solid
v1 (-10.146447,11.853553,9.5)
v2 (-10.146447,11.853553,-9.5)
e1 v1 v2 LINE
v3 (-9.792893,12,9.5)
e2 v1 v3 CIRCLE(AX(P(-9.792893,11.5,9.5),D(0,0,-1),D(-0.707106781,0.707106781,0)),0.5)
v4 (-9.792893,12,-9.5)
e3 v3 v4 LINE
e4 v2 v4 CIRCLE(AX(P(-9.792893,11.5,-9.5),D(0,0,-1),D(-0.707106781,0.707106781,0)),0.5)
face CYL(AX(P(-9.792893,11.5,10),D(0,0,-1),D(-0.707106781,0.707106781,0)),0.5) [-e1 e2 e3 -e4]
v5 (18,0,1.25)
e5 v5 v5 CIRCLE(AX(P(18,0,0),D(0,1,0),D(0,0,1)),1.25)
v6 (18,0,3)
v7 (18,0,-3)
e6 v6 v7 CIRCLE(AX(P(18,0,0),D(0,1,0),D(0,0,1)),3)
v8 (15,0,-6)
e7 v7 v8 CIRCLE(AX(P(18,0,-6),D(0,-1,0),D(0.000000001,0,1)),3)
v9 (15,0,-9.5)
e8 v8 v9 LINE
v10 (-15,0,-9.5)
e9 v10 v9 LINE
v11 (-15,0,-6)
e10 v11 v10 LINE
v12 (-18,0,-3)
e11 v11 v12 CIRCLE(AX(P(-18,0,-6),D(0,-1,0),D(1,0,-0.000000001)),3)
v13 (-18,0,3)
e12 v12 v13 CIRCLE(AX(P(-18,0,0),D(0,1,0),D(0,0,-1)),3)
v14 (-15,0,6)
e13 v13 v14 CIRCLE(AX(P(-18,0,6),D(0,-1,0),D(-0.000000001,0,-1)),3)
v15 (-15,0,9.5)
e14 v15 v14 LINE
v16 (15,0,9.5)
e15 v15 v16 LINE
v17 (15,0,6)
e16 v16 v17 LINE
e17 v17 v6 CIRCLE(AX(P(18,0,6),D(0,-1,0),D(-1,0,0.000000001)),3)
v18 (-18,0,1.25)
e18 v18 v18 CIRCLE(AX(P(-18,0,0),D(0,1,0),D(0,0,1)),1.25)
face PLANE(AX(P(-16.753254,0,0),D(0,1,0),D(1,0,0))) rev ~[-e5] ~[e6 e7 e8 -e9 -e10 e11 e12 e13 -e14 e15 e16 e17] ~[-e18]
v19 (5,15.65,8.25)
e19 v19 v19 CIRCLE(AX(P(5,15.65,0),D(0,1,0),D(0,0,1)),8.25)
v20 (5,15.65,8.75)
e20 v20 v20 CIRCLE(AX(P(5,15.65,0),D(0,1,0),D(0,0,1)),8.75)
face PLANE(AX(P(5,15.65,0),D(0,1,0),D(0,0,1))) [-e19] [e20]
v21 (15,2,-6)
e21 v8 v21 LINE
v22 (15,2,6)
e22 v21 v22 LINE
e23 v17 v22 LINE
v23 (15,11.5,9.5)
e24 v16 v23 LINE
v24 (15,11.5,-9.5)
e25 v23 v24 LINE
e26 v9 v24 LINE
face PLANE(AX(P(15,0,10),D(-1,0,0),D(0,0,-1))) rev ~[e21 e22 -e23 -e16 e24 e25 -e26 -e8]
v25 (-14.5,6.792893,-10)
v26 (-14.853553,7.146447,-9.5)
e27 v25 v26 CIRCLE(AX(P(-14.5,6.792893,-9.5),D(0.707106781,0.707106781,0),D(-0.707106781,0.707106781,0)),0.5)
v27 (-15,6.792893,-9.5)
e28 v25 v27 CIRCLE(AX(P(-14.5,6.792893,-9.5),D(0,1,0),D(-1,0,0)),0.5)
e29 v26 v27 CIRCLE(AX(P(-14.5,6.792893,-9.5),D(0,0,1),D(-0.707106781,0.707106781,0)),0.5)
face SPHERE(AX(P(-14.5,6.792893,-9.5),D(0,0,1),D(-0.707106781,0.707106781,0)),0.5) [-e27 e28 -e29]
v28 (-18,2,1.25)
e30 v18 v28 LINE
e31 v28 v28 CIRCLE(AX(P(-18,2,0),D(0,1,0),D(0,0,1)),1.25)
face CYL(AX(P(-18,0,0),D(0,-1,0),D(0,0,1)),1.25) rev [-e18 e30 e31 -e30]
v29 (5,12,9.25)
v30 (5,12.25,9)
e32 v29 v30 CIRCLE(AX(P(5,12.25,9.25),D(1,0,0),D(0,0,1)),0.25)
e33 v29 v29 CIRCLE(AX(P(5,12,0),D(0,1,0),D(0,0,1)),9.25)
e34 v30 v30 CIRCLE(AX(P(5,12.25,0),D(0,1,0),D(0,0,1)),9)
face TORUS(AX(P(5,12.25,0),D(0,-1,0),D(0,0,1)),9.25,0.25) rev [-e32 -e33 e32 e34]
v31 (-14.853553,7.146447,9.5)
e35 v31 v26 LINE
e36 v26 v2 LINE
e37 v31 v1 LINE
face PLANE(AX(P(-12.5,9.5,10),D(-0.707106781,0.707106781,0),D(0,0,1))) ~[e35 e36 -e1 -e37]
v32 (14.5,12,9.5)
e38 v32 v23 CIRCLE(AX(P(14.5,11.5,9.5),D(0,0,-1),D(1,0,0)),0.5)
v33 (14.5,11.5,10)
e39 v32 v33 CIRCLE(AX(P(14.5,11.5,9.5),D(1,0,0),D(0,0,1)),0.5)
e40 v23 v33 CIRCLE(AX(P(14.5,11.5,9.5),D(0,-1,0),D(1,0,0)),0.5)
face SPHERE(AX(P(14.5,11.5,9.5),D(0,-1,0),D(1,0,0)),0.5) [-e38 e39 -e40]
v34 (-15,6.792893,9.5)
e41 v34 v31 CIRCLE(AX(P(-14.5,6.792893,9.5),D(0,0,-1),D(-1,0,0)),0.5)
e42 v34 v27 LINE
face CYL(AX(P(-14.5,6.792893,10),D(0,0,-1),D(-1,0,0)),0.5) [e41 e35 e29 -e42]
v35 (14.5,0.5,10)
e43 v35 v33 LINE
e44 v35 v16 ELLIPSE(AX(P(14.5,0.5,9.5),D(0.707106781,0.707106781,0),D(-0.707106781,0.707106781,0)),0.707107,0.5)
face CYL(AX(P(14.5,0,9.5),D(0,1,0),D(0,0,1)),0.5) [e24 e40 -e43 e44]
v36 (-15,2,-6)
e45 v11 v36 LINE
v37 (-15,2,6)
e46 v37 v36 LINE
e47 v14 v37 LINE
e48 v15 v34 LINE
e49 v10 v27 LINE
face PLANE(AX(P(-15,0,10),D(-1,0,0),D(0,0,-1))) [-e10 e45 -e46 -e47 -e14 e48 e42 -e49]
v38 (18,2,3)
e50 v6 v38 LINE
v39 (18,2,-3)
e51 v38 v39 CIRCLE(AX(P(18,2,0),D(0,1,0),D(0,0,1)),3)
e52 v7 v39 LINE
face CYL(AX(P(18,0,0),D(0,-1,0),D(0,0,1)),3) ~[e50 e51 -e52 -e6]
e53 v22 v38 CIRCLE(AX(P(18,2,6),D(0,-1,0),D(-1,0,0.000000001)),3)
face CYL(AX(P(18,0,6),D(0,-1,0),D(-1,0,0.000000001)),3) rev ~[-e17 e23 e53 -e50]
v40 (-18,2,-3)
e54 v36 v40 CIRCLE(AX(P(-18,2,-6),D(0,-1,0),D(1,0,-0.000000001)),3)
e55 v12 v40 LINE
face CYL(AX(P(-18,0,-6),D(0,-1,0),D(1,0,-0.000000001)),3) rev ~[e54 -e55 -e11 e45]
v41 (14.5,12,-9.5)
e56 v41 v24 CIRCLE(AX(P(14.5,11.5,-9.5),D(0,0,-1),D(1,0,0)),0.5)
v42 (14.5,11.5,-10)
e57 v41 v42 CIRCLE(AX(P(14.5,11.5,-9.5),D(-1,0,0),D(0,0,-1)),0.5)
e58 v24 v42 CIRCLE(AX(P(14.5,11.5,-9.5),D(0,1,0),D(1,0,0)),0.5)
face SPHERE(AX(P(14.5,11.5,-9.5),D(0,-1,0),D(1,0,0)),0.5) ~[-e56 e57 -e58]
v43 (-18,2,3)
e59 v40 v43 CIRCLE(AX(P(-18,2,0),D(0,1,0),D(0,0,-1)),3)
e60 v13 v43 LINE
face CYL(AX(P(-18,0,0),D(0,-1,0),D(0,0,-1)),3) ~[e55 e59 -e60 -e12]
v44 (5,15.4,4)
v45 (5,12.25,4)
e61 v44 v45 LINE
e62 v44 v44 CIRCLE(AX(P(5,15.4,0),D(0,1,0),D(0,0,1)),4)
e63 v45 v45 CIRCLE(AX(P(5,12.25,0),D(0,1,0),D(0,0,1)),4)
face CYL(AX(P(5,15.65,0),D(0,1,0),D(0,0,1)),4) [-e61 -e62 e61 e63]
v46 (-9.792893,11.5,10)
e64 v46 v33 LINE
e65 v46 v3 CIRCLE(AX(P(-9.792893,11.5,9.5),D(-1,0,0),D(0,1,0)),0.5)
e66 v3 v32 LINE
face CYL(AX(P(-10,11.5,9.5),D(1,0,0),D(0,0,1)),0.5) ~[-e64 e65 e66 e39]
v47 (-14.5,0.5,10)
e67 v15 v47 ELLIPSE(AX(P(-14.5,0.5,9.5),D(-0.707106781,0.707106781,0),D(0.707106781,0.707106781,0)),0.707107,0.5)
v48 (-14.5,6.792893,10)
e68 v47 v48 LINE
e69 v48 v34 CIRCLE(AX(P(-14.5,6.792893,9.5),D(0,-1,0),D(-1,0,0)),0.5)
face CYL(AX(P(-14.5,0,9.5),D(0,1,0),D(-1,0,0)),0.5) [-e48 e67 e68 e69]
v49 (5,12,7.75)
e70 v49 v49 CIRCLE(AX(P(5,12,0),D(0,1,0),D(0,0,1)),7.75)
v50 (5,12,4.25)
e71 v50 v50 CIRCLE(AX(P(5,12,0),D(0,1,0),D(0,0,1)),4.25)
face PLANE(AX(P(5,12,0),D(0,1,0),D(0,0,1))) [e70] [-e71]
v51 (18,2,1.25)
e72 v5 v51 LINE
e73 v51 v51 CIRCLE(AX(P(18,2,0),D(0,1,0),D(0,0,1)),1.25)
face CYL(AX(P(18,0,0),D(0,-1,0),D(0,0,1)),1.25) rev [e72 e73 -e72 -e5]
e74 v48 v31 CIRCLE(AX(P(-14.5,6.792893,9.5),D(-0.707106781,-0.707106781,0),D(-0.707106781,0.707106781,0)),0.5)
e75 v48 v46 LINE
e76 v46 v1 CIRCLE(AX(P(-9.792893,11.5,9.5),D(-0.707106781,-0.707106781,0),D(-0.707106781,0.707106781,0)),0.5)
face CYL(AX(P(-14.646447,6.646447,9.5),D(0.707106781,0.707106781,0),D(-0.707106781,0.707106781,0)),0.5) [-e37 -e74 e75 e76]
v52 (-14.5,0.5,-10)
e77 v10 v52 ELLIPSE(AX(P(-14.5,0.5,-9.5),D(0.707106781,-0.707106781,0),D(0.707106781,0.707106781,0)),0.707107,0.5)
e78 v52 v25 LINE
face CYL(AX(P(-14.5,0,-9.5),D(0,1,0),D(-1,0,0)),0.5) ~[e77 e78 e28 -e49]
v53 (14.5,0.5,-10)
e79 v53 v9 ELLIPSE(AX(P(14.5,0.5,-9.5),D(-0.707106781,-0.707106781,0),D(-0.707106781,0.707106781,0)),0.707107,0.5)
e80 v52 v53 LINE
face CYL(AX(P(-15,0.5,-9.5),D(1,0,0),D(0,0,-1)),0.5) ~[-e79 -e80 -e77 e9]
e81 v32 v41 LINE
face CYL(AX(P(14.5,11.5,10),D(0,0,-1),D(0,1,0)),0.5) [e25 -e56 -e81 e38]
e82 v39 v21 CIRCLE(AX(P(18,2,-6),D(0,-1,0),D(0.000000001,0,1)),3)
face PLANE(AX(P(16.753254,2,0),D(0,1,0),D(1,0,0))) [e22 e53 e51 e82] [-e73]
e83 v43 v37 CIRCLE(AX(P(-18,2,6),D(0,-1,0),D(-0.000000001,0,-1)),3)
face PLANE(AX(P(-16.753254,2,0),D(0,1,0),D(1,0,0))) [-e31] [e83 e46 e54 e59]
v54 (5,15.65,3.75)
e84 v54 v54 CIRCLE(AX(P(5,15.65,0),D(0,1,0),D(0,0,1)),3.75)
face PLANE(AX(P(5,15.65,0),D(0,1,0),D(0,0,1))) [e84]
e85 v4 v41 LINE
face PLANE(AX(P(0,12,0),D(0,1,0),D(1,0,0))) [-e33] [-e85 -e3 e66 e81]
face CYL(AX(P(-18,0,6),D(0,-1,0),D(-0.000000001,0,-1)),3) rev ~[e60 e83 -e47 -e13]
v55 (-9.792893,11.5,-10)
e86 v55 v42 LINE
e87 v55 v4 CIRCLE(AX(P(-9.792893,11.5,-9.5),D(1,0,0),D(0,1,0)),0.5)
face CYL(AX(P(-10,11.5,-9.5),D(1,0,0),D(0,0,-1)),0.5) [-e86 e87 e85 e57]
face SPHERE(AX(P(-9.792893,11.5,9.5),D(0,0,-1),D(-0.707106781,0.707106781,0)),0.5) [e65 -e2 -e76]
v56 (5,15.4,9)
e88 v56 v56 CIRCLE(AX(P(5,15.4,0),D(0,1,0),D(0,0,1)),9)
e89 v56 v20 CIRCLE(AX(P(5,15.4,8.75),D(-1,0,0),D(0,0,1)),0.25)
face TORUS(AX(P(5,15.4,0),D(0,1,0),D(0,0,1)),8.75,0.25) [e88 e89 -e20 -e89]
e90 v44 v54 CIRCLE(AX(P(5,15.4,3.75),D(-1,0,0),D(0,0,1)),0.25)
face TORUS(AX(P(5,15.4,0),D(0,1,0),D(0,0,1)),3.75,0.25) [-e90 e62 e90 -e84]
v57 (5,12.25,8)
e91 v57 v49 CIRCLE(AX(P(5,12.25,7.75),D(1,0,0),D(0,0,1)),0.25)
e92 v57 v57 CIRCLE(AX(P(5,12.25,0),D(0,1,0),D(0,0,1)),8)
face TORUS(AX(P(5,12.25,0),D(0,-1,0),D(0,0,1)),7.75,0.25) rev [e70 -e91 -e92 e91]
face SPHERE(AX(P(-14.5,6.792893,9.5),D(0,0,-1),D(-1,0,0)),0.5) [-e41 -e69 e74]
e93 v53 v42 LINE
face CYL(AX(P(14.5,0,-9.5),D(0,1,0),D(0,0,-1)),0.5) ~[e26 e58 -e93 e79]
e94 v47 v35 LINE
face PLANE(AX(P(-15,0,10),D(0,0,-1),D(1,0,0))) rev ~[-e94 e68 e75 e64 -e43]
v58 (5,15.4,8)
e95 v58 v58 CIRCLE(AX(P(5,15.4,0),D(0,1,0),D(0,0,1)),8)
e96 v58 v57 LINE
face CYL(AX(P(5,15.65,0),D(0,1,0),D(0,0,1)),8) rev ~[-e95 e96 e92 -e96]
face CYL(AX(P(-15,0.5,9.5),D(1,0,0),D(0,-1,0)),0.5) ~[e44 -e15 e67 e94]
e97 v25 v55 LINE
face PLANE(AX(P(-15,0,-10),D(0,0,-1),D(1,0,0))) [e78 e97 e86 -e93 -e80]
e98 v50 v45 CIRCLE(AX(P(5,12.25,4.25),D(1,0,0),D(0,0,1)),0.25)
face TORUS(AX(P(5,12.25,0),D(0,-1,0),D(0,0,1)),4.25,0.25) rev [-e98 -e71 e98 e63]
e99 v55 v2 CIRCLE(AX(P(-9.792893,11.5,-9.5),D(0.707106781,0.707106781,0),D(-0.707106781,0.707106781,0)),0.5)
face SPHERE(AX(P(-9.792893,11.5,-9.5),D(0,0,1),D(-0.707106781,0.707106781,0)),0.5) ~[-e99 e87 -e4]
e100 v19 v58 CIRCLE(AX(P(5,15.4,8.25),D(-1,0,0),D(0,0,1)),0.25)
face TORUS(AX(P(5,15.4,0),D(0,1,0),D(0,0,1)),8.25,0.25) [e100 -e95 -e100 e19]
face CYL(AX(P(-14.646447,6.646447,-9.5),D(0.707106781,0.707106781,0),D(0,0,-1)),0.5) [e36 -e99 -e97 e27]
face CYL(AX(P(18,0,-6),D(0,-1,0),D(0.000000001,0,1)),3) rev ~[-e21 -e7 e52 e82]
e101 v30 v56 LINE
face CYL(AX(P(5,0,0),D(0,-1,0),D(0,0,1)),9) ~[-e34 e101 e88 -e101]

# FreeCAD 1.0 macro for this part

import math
import FreeCAD as App
import Part
import Sketcher
from FreeCAD import Vector
Q = App.Units.Quantity


def edges_at(feature, points):
    """Names of the edges that pass closest to the given points."""
    edges = feature.Shape.Edges
    near = lambda p: min(range(len(edges)), key=lambda i: edges[i].distToShape(Part.Vertex(*p))[0])
    return sorted({f"Edge{near(p) + 1}" for p in points})


def add_polygon(sketch, points):
    """Adds a closed chain of lines whose ends are joined by coincident constraints."""
    first, n = sketch.GeometryCount, len(points)
    for a, b in zip(points, points[1:] + points[:1]):
        sketch.addGeometry(Part.LineSegment(App.Vector(*a, 0), App.Vector(*b, 0)), False)
    for i in range(n):
        sketch.addConstraint(Sketcher.Constraint("Coincident", first + i, 2, first + (i + 1) % n, 1))

doc = App.newDocument("Part")
body = doc.addObject("PartDesign::Body", "Body")

# Sketch on XZ plane
sketch1 = body.newObject("Sketcher::SketchObject", "Sketch")
sketch1.AttachmentSupport = (doc.getObject("XZ_Plane"), [""])
sketch1.MapMode = "FlatFace"
add_polygon(sketch1, [(-15, -10), (-15, 10), (15, 10), (15, -10)])  # lines 0-3
sketch1.addGeometry(Part.Circle(Vector(5, 0, 0), Vector(0, 0, 1), 9), False)  # 4
sketch1.addConstraint([
    Sketcher.Constraint("Vertical", 0),
    Sketcher.Constraint("Horizontal", 1),
    Sketcher.Constraint("Vertical", 2),
    Sketcher.Constraint("Horizontal", 3),
    Sketcher.Constraint("Symmetric", 0, 2, 2, 2, -1, 1),
    Sketcher.Constraint("PointOnObject", 4, 3, -1),
    Sketcher.Constraint("Diameter", 4, Q("18 mm")),
    Sketcher.Constraint("DistanceX", 1, 1, 1, 2, Q("30 mm")),
    Sketcher.Constraint("DistanceY", 0, 1, 0, 2, Q("20 mm")),
    Sketcher.Constraint("DistanceX", -1, 1, 4, 3, Q("5 mm")),
])
pad1 = body.newObject("PartDesign::Pad", "Pad")
pad1.Profile = sketch1
pad1.Length = 12
pad1.Reversed = True

# Sketch on XZ plane
sketch2 = body.newObject("Sketcher::SketchObject", "Sketch001")
sketch2.AttachmentSupport = (doc.getObject("XZ_Plane"), [""])
sketch2.MapMode = "FlatFace"
sketch2.addGeometry(Part.Circle(Vector(5, 0, 0), Vector(0, 0, 1), 9), False)
sketch2.addConstraint([
    Sketcher.Constraint("PointOnObject", 0, 3, -1),
    Sketcher.Constraint("Diameter", 0, Q("18 mm")),
    Sketcher.Constraint("DistanceX", -1, 1, 0, 3, Q("5 mm")),
])
pad2 = body.newObject("PartDesign::Pad", "Pad001")
pad2.Profile = sketch2
pad2.Length = 15.65
pad2.Reversed = True

# Sketch on XZ plane
sketch3 = body.newObject("Sketcher::SketchObject", "Sketch002")
sketch3.AttachmentSupport = (doc.getObject("XZ_Plane"), [""])
sketch3.MapMode = "FlatFace"
sketch3.addGeometry([
    Part.LineSegment(Vector(-15, 6, 0), Vector(-15, -6, 0)),  # 0
    Part.ArcOfCircle(Part.Circle(Vector(-18, -6, 0), Vector(0, 0, 1), 3), math.radians(0), math.radians(90)),  # 1
    Part.ArcOfCircle(Part.Circle(Vector(-18, 0, 0), Vector(0, 0, 1), 3), math.radians(90), math.radians(270)),  # 2
    Part.ArcOfCircle(Part.Circle(Vector(-18, 6, 0), Vector(0, 0, 1), 3), math.radians(-90), math.radians(0)),  # 3
    Part.ArcOfCircle(Part.Circle(Vector(18, -6, 0), Vector(0, 0, 1), 3), math.radians(90), math.radians(180)),  # 4
    Part.LineSegment(Vector(15, -6, 0), Vector(15, 6, 0)),  # 5
    Part.ArcOfCircle(Part.Circle(Vector(18, 6, 0), Vector(0, 0, 1), 3), math.radians(180), math.radians(270)),  # 6
    Part.ArcOfCircle(Part.Circle(Vector(18, 0, 0), Vector(0, 0, 1), 3), math.radians(-90), math.radians(90)),  # 7
], False)
sketch3.addConstraint([
    Sketcher.Constraint("Tangent", 0, 2, 1, 1),
    Sketcher.Constraint("Tangent", 1, 2, 2, 2),
    Sketcher.Constraint("Tangent", 2, 1, 3, 1),
    Sketcher.Constraint("Tangent", 3, 2, 0, 1),
    Sketcher.Constraint("Tangent", 4, 2, 5, 1),
    Sketcher.Constraint("Tangent", 5, 2, 6, 1),
    Sketcher.Constraint("Tangent", 6, 2, 7, 2),
    Sketcher.Constraint("Tangent", 7, 1, 4, 1),
    Sketcher.Constraint("Vertical", 0),
    Sketcher.Constraint("Vertical", 5),
    Sketcher.Constraint("Equal", 1, 2),
    Sketcher.Constraint("Equal", 2, 3),
    Sketcher.Constraint("Equal", 3, 4),
    Sketcher.Constraint("Equal", 4, 6),
    Sketcher.Constraint("Equal", 6, 7),
    Sketcher.Constraint("Symmetric", 3, 3, 4, 3, -1, 1),
    Sketcher.Constraint("Symmetric", 2, 3, 7, 3, -2),
    Sketcher.Constraint("Vertical", 1, 3, 2, 3),
    Sketcher.Constraint("Radius", 1, Q("3 mm")),
    Sketcher.Constraint("DistanceX", 1, 3, -1, 1, Q("18 mm")),
])
pad3 = body.newObject("PartDesign::Pad", "Pad002")
pad3.Profile = sketch3
pad3.Length = 2
pad3.Reversed = True

# Sketch on XZ plane
sketch4 = body.newObject("Sketcher::SketchObject", "Sketch003")
sketch4.AttachmentSupport = (doc.getObject("XZ_Plane"), [""])
sketch4.MapMode = "FlatFace"
sketch4.addGeometry([
    Part.Circle(Vector(18, 0, 0), Vector(0, 0, 1), 1.2),
    Part.Circle(Vector(-18, 0, 0), Vector(0, 0, 1), 1.2),
], False)
sketch4.addConstraint([
    Sketcher.Constraint("Equal", 0, 1),
    Sketcher.Constraint("Symmetric", 0, 3, 1, 3, -1, 1),
    Sketcher.Constraint("PointOnObject", 0, 3, -1),
    Sketcher.Constraint("Diameter", 0, Q("2.5 mm")),
    Sketcher.Constraint("DistanceX", -1, 1, 0, 3, Q("18 mm")),
])
pocket1 = body.newObject("PartDesign::Pocket", "Pocket")
pocket1.Profile = sketch4
pocket1.Length = 2

# Sketch on XZ plane
sketch5 = body.newObject("Sketcher::SketchObject", "Sketch004")
sketch5.AttachmentSupport = (doc.getObject("XZ_Plane"), [""])
sketch5.MapMode = "FlatFace"
sketch5.AttachmentOffset = App.Placement(Vector(0, 0, -15.65), App.Rotation())
sketch5.addGeometry([
    Part.Circle(Vector(5, 0, 0), Vector(0, 0, 1), 8),
    Part.Circle(Vector(5, 0, 0), Vector(0, 0, 1), 4),
], False)
sketch5.addConstraint([
    Sketcher.Constraint("Coincident", 1, 3, 0, 3),
    Sketcher.Constraint("PointOnObject", 0, 3, -1),
    Sketcher.Constraint("Diameter", 0, Q("16 mm")),
    Sketcher.Constraint("Diameter", 1, Q("8 mm")),
    Sketcher.Constraint("DistanceX", -1, 1, 0, 3, Q("5 mm")),
])
pocket2 = body.newObject("PartDesign::Pocket", "Pocket001")
pocket2.Profile = sketch5
pocket2.Length = 3.65
pocket2.Reversed = True
doc.recompute()

chamfer = body.newObject("PartDesign::Chamfer", "Chamfer")
chamfer.Base = (pocket2, edges_at(pocket2, [(-15, 12, 0)]))
chamfer.Size = 5
doc.recompute()

fillet = body.newObject("PartDesign::Fillet", "Fillet")
fillet.Base = (chamfer, edges_at(chamfer, [
    (15, 6, 10),
    (15, 6, -10),
    (15, 12, 0),
    (2.5, 12, -10),
    (2.5, 12, 10),
    (-10, 12, 0),
    (-15, 3.5, 10),
    (-12.5, 9.5, 10),
    (-15, 3.5, -10),
    (-15, 7, 0),
    (-12.5, 9.5, -10),
    (0, 0, 10),
    (0, 0, -10),
]))
fillet.Radius = 0.5
doc.recompute()

fillet2 = body.newObject("PartDesign::Fillet", "Fillet001")
fillet2.Base = (fillet, edges_at(fillet, [
    (5, 15.65, -9),
    (5, 12, -8),
    (5, 12, -4),
    (5, 15.65, -8),
    (5, 15.65, -4),
    (5, 12, -9),
]))
fillet2.Radius = 0.25

doc.recompute()
